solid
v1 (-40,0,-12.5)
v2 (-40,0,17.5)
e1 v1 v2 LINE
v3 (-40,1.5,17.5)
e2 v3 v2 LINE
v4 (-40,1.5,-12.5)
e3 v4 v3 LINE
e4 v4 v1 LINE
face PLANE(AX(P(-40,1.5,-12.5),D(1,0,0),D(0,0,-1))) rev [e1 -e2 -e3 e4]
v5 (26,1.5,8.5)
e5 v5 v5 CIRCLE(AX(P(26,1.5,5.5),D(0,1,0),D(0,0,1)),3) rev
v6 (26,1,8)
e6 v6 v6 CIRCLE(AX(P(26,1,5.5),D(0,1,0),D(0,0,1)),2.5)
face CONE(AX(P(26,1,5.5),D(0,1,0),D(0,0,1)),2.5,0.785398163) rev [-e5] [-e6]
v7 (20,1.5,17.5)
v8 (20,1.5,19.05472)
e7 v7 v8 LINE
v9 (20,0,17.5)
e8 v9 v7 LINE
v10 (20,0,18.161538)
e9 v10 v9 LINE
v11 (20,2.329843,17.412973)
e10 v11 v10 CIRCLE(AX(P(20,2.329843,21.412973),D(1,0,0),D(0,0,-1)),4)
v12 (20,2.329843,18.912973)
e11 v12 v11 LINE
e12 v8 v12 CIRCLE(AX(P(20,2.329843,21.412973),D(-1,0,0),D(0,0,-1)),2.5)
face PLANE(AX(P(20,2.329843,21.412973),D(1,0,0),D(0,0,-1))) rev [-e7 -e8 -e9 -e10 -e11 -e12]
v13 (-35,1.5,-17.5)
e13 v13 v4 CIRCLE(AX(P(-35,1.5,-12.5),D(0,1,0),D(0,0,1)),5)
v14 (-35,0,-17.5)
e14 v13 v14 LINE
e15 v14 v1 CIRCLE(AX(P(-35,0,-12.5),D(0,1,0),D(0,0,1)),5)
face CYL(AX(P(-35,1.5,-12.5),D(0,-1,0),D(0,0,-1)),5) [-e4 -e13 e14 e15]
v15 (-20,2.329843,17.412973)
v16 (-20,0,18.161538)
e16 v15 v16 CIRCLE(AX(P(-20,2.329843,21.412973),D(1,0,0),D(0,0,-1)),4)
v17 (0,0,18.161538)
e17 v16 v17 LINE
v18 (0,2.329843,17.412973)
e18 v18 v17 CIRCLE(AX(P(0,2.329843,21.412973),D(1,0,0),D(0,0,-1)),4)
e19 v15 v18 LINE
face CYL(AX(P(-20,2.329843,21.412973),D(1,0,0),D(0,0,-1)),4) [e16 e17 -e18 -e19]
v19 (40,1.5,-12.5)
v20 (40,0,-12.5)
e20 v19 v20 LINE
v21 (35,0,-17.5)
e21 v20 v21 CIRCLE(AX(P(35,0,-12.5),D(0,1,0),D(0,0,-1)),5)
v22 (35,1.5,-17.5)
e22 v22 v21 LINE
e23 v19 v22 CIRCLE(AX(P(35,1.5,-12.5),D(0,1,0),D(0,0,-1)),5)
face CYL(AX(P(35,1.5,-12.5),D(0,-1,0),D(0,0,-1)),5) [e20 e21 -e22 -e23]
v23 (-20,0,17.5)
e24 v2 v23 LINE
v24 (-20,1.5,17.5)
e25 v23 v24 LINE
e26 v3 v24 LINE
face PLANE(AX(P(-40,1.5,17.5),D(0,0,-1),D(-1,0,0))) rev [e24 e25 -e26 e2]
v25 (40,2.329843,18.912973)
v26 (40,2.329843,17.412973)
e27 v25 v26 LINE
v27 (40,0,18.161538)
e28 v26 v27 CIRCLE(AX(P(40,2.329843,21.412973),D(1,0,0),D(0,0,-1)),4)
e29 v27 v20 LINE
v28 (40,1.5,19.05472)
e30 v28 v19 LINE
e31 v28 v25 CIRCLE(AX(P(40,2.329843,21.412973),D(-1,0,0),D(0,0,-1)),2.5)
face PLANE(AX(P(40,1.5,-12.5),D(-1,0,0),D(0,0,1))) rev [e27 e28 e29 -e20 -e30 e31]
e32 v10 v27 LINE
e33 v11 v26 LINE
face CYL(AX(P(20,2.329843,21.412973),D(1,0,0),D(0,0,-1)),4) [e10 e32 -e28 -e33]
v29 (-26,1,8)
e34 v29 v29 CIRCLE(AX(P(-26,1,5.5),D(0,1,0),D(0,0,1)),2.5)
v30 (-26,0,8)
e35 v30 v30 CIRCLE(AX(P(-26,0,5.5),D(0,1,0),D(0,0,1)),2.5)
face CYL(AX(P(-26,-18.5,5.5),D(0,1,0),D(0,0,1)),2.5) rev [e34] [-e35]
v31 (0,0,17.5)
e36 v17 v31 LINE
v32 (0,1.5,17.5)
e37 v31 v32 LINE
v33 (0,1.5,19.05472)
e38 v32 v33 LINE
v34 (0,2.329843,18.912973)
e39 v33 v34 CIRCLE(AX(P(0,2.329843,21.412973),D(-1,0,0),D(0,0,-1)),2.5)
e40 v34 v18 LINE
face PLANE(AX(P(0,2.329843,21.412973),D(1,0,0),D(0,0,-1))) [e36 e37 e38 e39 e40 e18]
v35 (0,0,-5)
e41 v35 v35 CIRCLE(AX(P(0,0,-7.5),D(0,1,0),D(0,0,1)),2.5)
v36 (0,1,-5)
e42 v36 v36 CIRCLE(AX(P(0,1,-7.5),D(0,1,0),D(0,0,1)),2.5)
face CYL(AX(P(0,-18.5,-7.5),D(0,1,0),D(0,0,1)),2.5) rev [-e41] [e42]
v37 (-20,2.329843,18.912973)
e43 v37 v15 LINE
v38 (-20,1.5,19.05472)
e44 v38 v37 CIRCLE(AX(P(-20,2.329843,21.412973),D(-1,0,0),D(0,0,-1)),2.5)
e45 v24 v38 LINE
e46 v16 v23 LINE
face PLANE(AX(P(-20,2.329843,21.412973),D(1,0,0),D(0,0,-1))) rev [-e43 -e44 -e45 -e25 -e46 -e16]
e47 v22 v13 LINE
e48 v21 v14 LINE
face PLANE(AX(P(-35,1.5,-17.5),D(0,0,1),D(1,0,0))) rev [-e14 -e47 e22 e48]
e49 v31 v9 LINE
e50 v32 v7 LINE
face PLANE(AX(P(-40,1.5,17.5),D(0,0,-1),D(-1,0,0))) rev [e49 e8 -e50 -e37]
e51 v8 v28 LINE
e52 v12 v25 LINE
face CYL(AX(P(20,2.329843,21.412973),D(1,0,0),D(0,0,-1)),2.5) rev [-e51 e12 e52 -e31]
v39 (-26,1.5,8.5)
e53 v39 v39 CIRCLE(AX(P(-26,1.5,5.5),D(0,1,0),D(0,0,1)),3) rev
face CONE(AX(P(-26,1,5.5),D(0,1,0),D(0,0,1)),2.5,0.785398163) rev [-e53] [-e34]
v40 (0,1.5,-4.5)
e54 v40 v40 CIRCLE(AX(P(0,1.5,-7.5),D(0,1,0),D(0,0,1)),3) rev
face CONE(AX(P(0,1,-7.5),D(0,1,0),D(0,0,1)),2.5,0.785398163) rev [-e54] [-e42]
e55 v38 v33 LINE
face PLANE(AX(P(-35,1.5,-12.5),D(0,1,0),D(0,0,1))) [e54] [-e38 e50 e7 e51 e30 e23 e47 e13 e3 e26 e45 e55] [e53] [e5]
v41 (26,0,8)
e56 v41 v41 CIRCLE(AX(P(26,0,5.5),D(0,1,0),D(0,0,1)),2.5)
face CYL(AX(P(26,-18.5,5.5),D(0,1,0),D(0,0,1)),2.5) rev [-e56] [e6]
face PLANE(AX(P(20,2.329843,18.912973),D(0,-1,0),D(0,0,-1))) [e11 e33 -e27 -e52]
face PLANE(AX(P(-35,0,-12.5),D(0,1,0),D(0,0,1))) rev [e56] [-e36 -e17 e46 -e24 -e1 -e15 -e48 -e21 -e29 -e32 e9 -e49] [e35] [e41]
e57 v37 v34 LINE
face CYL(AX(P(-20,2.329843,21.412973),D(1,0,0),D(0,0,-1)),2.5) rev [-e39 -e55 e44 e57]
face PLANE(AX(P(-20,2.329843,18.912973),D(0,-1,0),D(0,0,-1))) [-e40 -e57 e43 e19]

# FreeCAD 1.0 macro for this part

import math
import FreeCAD as App
import Part
import Sketcher
Q = App.Units.Quantity


def edges_at(feature, points):
    """Names of the edges that pass closest to the given points."""
    edges = feature.Shape.Edges
    near = lambda p: min(range(len(edges)), key=lambda i: edges[i].distToShape(Part.Vertex(*p))[0])
    return sorted({f"Edge{near(p) + 1}" for p in points})

doc = App.newDocument("Part")
params = doc.addObject("Spreadsheet::Sheet", "Params")
for row, (alias, value) in enumerate([
    ("sketch1_radius", "5 mm"),
    ("sketch1_width", "70 mm"),
    ("sketch1_height", "30 mm"),
    ("pad1_length", "1.5 mm"),
    ("sketch2_radius", "4 mm"),
    ("sketch2_radius2", "2.5 mm"),
    ("pad2_length", "20 mm"),
    ("linearpattern_pitch", "40 mm"),
    ("sketch3_diameter", "5 mm"),
    ("pocket1_length", "20 mm"),
    ("chamfer_size", "0.5 mm"),
], start=1):
    params.set(f"A{row}", alias)
    params.set(f"B{row}", "=" + value)
    params.setAlias(f"B{row}", alias)

body = doc.addObject("PartDesign::Body", "Body")

# Sketch on XZ plane
sketch1 = doc.addObject("Sketcher::SketchObject", "Sketch")
body.addObject(sketch1)
sketch1.AttachmentSupport = (doc.XZ_Plane, [""])
sketch1.MapMode = "FlatFace"
sketch1.addGeometry(Part.LineSegment(App.Vector(35, -18, 0), App.Vector(-35, -18, 0)), False)
sketch1.addGeometry(Part.ArcOfCircle(Part.Circle(App.Vector(-35, -12, 0), App.Vector(0, 0, 1), 5), math.radians(180), math.radians(270)), False)
sketch1.addGeometry(Part.LineSegment(App.Vector(-40, -12, 0), App.Vector(-40, 18, 0)), False)
sketch1.addGeometry(Part.LineSegment(App.Vector(-40, 18, 0), App.Vector(40, 18, 0)), False)
sketch1.addGeometry(Part.LineSegment(App.Vector(40, 18, 0), App.Vector(40, -12, 0)), False)
sketch1.addGeometry(Part.ArcOfCircle(Part.Circle(App.Vector(35, -12, 0), App.Vector(0, 0, 1), 5), math.radians(-90), math.radians(0)), False)
sketch1.addConstraint(Sketcher.Constraint("Tangent", 0, 2, 1, 2))
sketch1.addConstraint(Sketcher.Constraint("Tangent", 1, 1, 2, 1))
sketch1.addConstraint(Sketcher.Constraint("Coincident", 2, 2, 3, 1))
sketch1.addConstraint(Sketcher.Constraint("Coincident", 3, 2, 4, 1))
sketch1.addConstraint(Sketcher.Constraint("Tangent", 4, 2, 5, 2))
sketch1.addConstraint(Sketcher.Constraint("Tangent", 5, 1, 0, 1))
sketch1.addConstraint(Sketcher.Constraint("Horizontal", 0))
sketch1.addConstraint(Sketcher.Constraint("Vertical", 2))
sketch1.addConstraint(Sketcher.Constraint("Horizontal", 3))
sketch1.addConstraint(Sketcher.Constraint("Vertical", 4))
sketch1.addConstraint(Sketcher.Constraint("Equal", 1, 5))
sketch1.addConstraint(Sketcher.Constraint("Radius", 1, Q("5 mm")))
sketch1.addConstraint(Sketcher.Constraint("DistanceX", 0, 2, 0, 1, Q("70 mm")))
sketch1.addConstraint(Sketcher.Constraint("DistanceY", 2, 1, 2, 2, Q("30 mm")))
sketch1.addConstraint(Sketcher.Constraint("DistanceX", 1, 3, -1, 1, Q("35 mm")))
sketch1.addConstraint(Sketcher.Constraint("DistanceY", 1, 3, -1, 1, Q("12.5 mm")))
sketch1.setExpression("Constraints[11]", "Params.sketch1_radius")
sketch1.setExpression("Constraints[12]", "Params.sketch1_width")
sketch1.setExpression("Constraints[13]", "Params.sketch1_height")
pad1 = doc.addObject("PartDesign::Pad", "Pad")
body.addObject(pad1)
pad1.Profile = sketch1
pad1.setExpression("Length", "Params.pad1_length")
pad1.Reversed = True

# Sketch on YZ plane
sketch2 = doc.addObject("Sketcher::SketchObject", "Sketch001")
body.addObject(sketch2)
sketch2.AttachmentSupport = (doc.YZ_Plane, [""])
sketch2.MapMode = "FlatFace"
sketch2.AttachmentOffset = App.Placement(App.Vector(0, 0, 40), App.Rotation())
sketch2.addGeometry(Part.LineSegment(App.Vector(0, 18.2, 0), App.Vector(0, 17.5, 0)), False)
sketch2.addGeometry(Part.LineSegment(App.Vector(0, 17.5, 0), App.Vector(1.5, 17.5, 0)), False)
sketch2.addGeometry(Part.LineSegment(App.Vector(1.5, 17.5, 0), App.Vector(1.5, 19.1, 0)), False)
sketch2.addGeometry(Part.ArcOfCircle(Part.Circle(App.Vector(2.3, 21.4, 0), App.Vector(0, 0, 1), 2.5), math.radians(-90), math.radians(251)), False)
sketch2.addGeometry(Part.LineSegment(App.Vector(2.3, 18.9, 0), App.Vector(2.3, 17.4, 0)), False)
sketch2.addGeometry(Part.ArcOfCircle(Part.Circle(App.Vector(2.3, 21.4, 0), App.Vector(0, 0, 1), 4), math.radians(-90), math.radians(234)), False)
sketch2.addConstraint(Sketcher.Constraint("Coincident", 0, 2, 1, 1))
sketch2.addConstraint(Sketcher.Constraint("Coincident", 1, 2, 2, 1))
sketch2.addConstraint(Sketcher.Constraint("Coincident", 2, 2, 3, 2))
sketch2.addConstraint(Sketcher.Constraint("Coincident", 3, 1, 4, 1))
sketch2.addConstraint(Sketcher.Constraint("Coincident", 4, 2, 5, 1))
sketch2.addConstraint(Sketcher.Constraint("Coincident", 5, 2, 0, 1))
sketch2.addConstraint(Sketcher.Constraint("Vertical", 0))
sketch2.addConstraint(Sketcher.Constraint("Horizontal", 1))
sketch2.addConstraint(Sketcher.Constraint("Vertical", 2))
sketch2.addConstraint(Sketcher.Constraint("Vertical", 4))
sketch2.addConstraint(Sketcher.Constraint("Coincident", 5, 3, 3, 3))
sketch2.addConstraint(Sketcher.Constraint("PointOnObject", 0, 2, -2))
sketch2.addConstraint(Sketcher.Constraint("Vertical", 5, 3, 3, 1))
sketch2.addConstraint(Sketcher.Constraint("Equal", 1, 4))
sketch2.addConstraint(Sketcher.Constraint("Radius", 5, Q("4 mm")))
sketch2.addConstraint(Sketcher.Constraint("Radius", 3, Q("2.5 mm")))
sketch2.addConstraint(Sketcher.Constraint("DistanceY", -1, 1, 0, 2, Q("17.5 mm")))
sketch2.addConstraint(Sketcher.Constraint("DistanceY", 0, 2, 0, 1, Q("0.661538 mm")))
sketch2.addConstraint(Sketcher.Constraint("DistanceY", 2, 1, 2, 2, Q("1.55472 mm")))
sketch2.setExpression("Constraints[14]", "Params.sketch2_radius")
sketch2.setExpression("Constraints[15]", "Params.sketch2_radius2")
pad2 = doc.addObject("PartDesign::Pad", "Pad001")
body.addObject(pad2)
pad2.Profile = sketch2
pad2.setExpression("Length", "Params.pad2_length")
pad2.Reversed = True
doc.recompute()

linearpattern = doc.addObject("PartDesign::LinearPattern", "LinearPattern")
body.addObject(linearpattern)
linearpattern.Originals = [pad2]
linearpattern.Direction = (doc.X_Axis, [""])
linearpattern.Mode = "offset"
linearpattern.setExpression("Offset", "Params.linearpattern_pitch")
linearpattern.Occurrences = 2
linearpattern.Reversed = True
body.Tip = linearpattern

# Sketch on XZ plane
sketch3 = doc.addObject("Sketcher::SketchObject", "Sketch002")
body.addObject(sketch3)
sketch3.AttachmentSupport = (doc.XZ_Plane, [""])
sketch3.MapMode = "FlatFace"
sketch3.AttachmentOffset = App.Placement(App.Vector(0, 0, -1.5), App.Rotation())
sketch3.addGeometry(Part.Circle(App.Vector(0, -7.5, 0), App.Vector(0, 0, 1), 2.5), False)
sketch3.addGeometry(Part.Circle(App.Vector(-26, 5.5, 0), App.Vector(0, 0, 1), 2.5), False)
sketch3.addGeometry(Part.Circle(App.Vector(26, 5.5, 0), App.Vector(0, 0, 1), 2.5), False)
sketch3.addConstraint(Sketcher.Constraint("Equal", 0, 1))
sketch3.addConstraint(Sketcher.Constraint("Equal", 1, 2))
sketch3.addConstraint(Sketcher.Constraint("Symmetric", 1, 3, 2, 3, -2))
sketch3.addConstraint(Sketcher.Constraint("PointOnObject", 0, 3, -2))
sketch3.addConstraint(Sketcher.Constraint("Diameter", 0, Q("5 mm")))
sketch3.addConstraint(Sketcher.Constraint("DistanceX", 1, 3, -1, 1, Q("26 mm")))
sketch3.addConstraint(Sketcher.Constraint("DistanceY", 0, 3, 1, 3, Q("13 mm")))
sketch3.addConstraint(Sketcher.Constraint("DistanceY", 0, 3, -1, 1, Q("7.5 mm")))
sketch3.setExpression("Constraints[4]", "Params.sketch3_diameter")
pocket1 = doc.addObject("PartDesign::Pocket", "Pocket")
body.addObject(pocket1)
pocket1.Profile = sketch3
pocket1.setExpression("Length", "Params.pocket1_length")
pocket1.Reversed = True
doc.recompute()

chamfer = doc.addObject("PartDesign::Chamfer", "Chamfer")
body.addObject(chamfer)
chamfer.Base = (pocket1, edges_at(pocket1, [(0, 1.5, -10), (-26, 1.5, 3), (26, 1.5, 3)]))
chamfer.setExpression("Size", "Params.chamfer_size")

doc.recompute()
